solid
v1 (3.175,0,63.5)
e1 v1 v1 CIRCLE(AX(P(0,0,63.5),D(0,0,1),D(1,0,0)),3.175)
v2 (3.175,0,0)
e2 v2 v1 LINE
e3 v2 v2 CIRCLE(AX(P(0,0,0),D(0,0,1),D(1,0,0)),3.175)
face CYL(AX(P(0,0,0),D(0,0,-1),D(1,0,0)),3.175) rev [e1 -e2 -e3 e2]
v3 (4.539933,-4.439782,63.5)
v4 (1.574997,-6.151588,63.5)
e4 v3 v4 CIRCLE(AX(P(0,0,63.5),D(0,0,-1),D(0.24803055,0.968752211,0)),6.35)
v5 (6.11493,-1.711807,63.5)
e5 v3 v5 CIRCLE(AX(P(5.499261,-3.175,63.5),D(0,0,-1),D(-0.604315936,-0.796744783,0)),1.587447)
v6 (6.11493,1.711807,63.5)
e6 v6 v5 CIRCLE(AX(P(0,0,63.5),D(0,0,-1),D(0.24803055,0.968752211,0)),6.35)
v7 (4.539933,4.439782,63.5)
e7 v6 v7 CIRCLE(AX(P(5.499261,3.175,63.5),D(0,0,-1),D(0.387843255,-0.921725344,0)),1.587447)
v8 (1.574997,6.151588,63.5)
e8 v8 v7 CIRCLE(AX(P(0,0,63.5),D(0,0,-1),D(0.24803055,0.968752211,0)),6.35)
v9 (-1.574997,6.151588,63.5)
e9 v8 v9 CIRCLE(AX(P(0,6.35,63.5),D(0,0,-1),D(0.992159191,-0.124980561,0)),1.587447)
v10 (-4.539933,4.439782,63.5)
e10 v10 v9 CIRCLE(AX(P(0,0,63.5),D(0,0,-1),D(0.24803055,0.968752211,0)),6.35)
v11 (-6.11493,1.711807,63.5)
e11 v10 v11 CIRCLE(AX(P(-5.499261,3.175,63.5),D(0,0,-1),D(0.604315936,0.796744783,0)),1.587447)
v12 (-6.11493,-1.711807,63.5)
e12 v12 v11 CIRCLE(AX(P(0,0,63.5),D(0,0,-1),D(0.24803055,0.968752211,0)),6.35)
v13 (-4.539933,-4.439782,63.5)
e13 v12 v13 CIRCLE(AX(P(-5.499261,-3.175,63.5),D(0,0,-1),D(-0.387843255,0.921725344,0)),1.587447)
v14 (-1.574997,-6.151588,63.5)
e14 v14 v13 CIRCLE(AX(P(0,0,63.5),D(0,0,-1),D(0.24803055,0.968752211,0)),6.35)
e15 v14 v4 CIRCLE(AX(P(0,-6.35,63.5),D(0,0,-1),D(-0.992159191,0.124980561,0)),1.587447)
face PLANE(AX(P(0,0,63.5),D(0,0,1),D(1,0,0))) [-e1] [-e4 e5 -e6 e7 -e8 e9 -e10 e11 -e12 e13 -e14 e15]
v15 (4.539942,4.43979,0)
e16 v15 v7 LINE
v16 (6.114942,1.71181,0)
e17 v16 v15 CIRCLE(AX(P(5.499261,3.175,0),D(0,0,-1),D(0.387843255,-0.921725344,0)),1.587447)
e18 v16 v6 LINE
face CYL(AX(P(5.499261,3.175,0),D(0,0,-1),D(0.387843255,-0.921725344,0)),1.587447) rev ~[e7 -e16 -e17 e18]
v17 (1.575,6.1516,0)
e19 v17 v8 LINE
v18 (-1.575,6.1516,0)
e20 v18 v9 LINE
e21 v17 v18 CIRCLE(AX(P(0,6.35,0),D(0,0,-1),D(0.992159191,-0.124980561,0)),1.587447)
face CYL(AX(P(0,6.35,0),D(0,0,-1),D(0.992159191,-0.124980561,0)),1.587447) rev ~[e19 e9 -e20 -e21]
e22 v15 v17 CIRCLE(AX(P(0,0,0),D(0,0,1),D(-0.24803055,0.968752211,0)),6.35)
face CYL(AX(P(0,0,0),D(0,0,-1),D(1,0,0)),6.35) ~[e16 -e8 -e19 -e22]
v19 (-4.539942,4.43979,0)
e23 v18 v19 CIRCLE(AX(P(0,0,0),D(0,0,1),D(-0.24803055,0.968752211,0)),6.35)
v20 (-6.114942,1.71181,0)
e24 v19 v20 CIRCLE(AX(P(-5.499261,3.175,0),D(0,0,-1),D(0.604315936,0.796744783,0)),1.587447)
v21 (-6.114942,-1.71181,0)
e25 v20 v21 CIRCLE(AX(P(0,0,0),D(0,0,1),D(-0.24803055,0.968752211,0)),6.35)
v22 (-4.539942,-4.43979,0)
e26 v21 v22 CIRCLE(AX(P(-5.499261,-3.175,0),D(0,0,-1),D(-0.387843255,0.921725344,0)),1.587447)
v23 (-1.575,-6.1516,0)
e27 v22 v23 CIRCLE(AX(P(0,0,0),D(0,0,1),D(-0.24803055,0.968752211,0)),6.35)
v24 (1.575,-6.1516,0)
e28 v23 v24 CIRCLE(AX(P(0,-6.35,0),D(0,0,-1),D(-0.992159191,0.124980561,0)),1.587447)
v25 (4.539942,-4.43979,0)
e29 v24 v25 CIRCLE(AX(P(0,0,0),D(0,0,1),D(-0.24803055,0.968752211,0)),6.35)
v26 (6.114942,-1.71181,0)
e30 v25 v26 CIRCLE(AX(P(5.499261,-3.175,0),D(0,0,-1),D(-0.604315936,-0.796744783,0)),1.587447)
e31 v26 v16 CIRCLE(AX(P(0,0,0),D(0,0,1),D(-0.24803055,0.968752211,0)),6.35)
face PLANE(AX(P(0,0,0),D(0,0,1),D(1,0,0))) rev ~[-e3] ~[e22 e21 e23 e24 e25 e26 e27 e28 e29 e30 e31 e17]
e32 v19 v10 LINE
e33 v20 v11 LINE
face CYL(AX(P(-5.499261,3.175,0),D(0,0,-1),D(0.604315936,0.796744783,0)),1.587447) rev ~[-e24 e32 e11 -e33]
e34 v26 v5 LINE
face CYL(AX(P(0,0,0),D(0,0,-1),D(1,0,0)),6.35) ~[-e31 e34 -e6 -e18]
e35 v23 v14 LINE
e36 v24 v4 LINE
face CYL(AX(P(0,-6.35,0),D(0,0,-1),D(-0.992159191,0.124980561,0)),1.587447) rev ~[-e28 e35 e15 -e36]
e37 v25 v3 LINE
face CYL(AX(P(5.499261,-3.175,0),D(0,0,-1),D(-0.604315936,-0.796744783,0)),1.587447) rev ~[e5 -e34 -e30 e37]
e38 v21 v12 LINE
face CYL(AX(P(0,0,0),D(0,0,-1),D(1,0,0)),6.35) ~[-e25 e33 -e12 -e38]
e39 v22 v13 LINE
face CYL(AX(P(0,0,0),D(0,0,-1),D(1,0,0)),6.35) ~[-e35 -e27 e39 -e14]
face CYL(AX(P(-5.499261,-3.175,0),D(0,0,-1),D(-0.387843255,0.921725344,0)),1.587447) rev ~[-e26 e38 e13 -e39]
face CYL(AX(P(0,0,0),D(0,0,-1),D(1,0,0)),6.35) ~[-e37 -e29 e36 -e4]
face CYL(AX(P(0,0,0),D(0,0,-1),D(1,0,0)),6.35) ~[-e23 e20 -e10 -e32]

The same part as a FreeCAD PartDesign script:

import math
import FreeCAD as App
import Part
import Sketcher
from FreeCAD import Vector
Q = App.Units.Quantity

doc = App.newDocument("Part")
body = doc.addObject("PartDesign::Body", "Body")

sketch1 = doc.addObject("Sketcher::SketchObject", "Sketch")
body.addObject(sketch1)
sketch1.AttachmentSupport = (doc.XY_Plane, [""])
sketch1.MapMode = "FlatFace"
sketch1.addGeometry([
    Part.Circle(Vector(0, 0, 0), Vector(0, 0, 1), 6.35),
    Part.Circle(Vector(0, 0, 0), Vector(0, 0, 1), 3.175),
], False)
sketch1.addConstraint([
    Sketcher.Constraint("Coincident", 0, 3, -1, 1),
    Sketcher.Constraint("Coincident", 1, 3, -1, 1),
    Sketcher.Constraint("Diameter", 0, Q("0.5 in")),
    Sketcher.Constraint("Diameter", 1, Q("0.25 in")),
])
pad1 = doc.addObject("PartDesign::Pad", "Pad")
body.addObject(pad1)
pad1.Profile = sketch1
pad1.Length = Q("2.5 in")

sketch2 = doc.addObject("Sketcher::SketchObject", "Sketch001")
body.addObject(sketch2)
sketch2.AttachmentSupport = (doc.XY_Plane, [""])
sketch2.MapMode = "FlatFace"
sketch2.addGeometry([
    Part.ArcOfCircle(Part.Circle(Vector(0, 6.35, 0), Vector(0, 0, 1), 1.587447), math.radians(-172.820367), math.radians(-7.179633)),
    Part.ArcOfCircle(Part.Circle(Vector(0, 0, 0), Vector(0, 0, 1), 6.35), math.radians(75.638999), math.radians(104.361001)),
], False)
sketch2.addConstraint([
    Sketcher.Constraint("Coincident", 0, 1, 1, 2),
    Sketcher.Constraint("Coincident", 1, 1, 0, 2),
    Sketcher.Constraint("Coincident", 1, 3, -1, 1),
    Sketcher.Constraint("PointOnObject", 0, 3, -2),
    Sketcher.Constraint("Radius", 0, Q("0.0625 in")),
    Sketcher.Constraint("Radius", 1, Q("0.25 in")),
    Sketcher.Constraint("DistanceY", -1, 1, 0, 3, Q("0.25 in")),
])
pocket1 = doc.addObject("PartDesign::Pocket", "Pocket")
body.addObject(pocket1)
pocket1.Profile = sketch2
pocket1.Type = "ThroughAll"
pocket1.Reversed = True
doc.recompute()

polarpattern = doc.addObject("PartDesign::PolarPattern", "PolarPattern")
body.addObject(polarpattern)
polarpattern.Originals = [pocket1]
polarpattern.Axis = (doc.Z_Axis, [""])
polarpattern.Angle = 360
polarpattern.Occurrences = 6
body.Tip = polarpattern

doc.recompute()
